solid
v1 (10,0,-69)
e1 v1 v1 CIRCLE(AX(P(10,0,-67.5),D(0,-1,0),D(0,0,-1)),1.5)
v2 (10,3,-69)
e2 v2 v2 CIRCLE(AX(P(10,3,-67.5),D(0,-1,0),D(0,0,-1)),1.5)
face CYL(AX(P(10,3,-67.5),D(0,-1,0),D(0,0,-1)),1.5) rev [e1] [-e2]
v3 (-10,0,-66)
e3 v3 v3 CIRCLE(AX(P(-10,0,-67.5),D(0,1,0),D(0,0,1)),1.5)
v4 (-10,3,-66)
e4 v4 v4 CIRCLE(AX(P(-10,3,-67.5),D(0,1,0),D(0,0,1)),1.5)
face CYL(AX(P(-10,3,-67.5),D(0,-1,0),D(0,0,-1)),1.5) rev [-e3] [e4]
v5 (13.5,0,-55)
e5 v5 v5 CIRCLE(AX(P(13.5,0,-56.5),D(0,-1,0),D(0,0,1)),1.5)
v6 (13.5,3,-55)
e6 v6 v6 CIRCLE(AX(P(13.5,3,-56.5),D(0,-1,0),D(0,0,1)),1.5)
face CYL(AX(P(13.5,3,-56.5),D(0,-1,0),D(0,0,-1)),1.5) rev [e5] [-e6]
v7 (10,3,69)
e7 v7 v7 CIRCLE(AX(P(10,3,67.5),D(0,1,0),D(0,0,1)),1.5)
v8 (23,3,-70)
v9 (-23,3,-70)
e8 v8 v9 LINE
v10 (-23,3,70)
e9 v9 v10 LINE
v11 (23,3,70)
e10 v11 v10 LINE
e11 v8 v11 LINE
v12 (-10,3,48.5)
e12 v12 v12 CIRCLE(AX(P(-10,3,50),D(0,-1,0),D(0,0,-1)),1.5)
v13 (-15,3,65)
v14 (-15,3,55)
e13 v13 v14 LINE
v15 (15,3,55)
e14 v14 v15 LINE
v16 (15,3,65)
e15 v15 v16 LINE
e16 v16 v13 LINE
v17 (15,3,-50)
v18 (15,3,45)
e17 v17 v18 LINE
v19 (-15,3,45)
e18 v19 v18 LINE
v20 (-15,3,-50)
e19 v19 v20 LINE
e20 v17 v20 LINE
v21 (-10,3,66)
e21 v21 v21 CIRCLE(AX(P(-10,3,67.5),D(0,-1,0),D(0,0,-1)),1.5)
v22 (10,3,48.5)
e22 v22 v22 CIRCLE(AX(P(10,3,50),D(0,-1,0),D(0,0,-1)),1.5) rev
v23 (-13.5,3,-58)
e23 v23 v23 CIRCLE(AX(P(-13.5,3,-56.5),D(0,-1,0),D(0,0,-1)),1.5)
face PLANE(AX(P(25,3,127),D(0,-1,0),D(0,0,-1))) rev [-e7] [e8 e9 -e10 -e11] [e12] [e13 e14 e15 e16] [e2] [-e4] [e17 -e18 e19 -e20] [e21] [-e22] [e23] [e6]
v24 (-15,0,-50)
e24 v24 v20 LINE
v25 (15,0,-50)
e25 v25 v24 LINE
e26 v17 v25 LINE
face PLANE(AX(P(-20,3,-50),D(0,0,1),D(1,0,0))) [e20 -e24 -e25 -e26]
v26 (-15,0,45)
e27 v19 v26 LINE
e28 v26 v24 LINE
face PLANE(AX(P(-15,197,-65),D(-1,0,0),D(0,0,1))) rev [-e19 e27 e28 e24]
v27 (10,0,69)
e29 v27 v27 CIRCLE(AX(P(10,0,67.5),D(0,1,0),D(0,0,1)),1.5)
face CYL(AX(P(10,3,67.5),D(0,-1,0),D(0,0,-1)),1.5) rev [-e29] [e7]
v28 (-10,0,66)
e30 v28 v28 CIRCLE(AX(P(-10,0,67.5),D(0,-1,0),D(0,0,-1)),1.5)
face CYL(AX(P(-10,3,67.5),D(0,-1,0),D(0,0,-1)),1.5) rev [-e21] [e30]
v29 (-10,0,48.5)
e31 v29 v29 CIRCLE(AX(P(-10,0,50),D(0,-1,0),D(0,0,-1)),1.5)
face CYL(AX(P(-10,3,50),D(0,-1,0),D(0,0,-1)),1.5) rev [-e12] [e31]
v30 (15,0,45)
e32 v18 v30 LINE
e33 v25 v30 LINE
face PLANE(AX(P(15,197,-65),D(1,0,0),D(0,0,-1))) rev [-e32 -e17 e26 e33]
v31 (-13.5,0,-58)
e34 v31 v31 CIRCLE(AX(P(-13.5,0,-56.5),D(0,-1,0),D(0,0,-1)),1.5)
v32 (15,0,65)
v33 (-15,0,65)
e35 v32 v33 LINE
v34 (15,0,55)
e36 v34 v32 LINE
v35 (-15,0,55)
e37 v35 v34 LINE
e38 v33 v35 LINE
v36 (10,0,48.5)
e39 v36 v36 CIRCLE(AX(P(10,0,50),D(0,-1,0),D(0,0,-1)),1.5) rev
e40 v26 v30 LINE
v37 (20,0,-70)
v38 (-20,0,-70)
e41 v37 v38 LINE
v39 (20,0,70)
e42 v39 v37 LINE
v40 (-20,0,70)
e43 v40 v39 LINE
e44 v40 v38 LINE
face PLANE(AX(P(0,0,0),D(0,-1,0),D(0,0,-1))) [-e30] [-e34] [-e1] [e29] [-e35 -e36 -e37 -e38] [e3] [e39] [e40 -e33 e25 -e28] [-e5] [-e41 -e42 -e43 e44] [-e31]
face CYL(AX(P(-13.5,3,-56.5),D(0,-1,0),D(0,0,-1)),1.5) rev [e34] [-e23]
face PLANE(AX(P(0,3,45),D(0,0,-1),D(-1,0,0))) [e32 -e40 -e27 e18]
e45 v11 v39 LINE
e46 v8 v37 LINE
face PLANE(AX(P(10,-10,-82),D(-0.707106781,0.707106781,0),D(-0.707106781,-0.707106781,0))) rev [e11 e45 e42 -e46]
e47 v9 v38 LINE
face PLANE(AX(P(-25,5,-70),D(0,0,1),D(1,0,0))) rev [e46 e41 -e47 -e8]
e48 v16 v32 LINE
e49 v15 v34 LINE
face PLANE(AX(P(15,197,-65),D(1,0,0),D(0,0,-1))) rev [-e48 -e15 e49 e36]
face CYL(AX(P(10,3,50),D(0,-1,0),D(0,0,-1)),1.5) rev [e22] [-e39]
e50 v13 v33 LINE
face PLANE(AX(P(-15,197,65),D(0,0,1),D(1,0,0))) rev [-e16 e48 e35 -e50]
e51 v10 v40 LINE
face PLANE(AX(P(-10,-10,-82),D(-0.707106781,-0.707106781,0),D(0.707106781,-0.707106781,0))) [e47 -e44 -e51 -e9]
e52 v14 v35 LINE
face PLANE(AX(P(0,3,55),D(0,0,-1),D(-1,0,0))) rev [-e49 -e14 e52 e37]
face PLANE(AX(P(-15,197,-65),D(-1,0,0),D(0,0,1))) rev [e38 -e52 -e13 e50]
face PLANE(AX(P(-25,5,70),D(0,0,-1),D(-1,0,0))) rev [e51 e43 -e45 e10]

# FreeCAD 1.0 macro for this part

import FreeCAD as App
import Part
import Sketcher
from FreeCAD import Vector

doc = App.newDocument("Part")
body = doc.addObject("PartDesign::Body", "Body")

# Sketch on XZ plane
sketch1 = doc.addObject("Sketcher::SketchObject", "Sketch")
body.addObject(sketch1)
sketch1.AttachmentSupport = (doc.XZ_Plane, [""])
sketch1.MapMode = "FlatFace"
sketch1.addGeometry([
    Part.LineSegment(Vector(-25, -70, 0), Vector(-25, 70, 0)),
    Part.LineSegment(Vector(-25, 70, 0), Vector(25, 70, 0)),
    Part.LineSegment(Vector(25, 70, 0), Vector(25, -70, 0)),
    Part.LineSegment(Vector(25, -70, 0), Vector(-25, -70, 0)),
], False)
sketch1.addConstraint([
    Sketcher.Constraint("Coincident", 0, 2, 1, 1),
    Sketcher.Constraint("Coincident", 1, 2, 2, 1),
    Sketcher.Constraint("Coincident", 2, 2, 3, 1),
    Sketcher.Constraint("Coincident", 3, 2, 0, 1),
    Sketcher.Constraint("Vertical", 0),
    Sketcher.Constraint("Horizontal", 1),
    Sketcher.Constraint("Vertical", 2),
    Sketcher.Constraint("Horizontal", 3),
    Sketcher.Constraint("Symmetric", 0, 2, 2, 2, -1, 1),
    Sketcher.Constraint("DistanceX", 1, 1, 1, 2, 50.0),
    Sketcher.Constraint("DistanceY", 0, 1, 0, 2, 140.0),
])
pad1 = doc.addObject("PartDesign::Pad", "Pad")
body.addObject(pad1)
pad1.Profile = sketch1
pad1.Length = 5
pad1.Reversed = True

# Sketch on XY plane
sketch2 = doc.addObject("Sketcher::SketchObject", "Sketch001")
body.addObject(sketch2)
sketch2.AttachmentSupport = (doc.XY_Plane, [""])
sketch2.MapMode = "FlatFace"
sketch2.AttachmentOffset = App.Placement(Vector(0, 0, 70), App.Rotation())
sketch2.addGeometry([
    Part.LineSegment(Vector(-20, 0, 0), Vector(-25, 5, 0)),  # 0
    Part.LineSegment(Vector(-25, 5, 0), Vector(-25, 0, 0)),  # 1
    Part.LineSegment(Vector(-25, 0, 0), Vector(-20, 0, 0)),  # 2
    Part.LineSegment(Vector(25, 5, 0), Vector(20, 0, 0)),  # 3
    Part.LineSegment(Vector(20, 0, 0), Vector(25, 0, 0)),  # 4
    Part.LineSegment(Vector(25, 0, 0), Vector(25, 5, 0)),  # 5
], False)
sketch2.addConstraint([
    Sketcher.Constraint("Coincident", 0, 2, 1, 1),
    Sketcher.Constraint("Coincident", 1, 2, 2, 1),
    Sketcher.Constraint("Coincident", 2, 2, 0, 1),
    Sketcher.Constraint("Coincident", 3, 2, 4, 1),
    Sketcher.Constraint("Coincident", 4, 2, 5, 1),
    Sketcher.Constraint("Coincident", 5, 2, 3, 1),
    Sketcher.Constraint("Vertical", 1),
    Sketcher.Constraint("Horizontal", 2),
    Sketcher.Constraint("Horizontal", 4),
    Sketcher.Constraint("Vertical", 5),
    Sketcher.Constraint("Symmetric", 2, 2, 3, 2, -1, 1),
    Sketcher.Constraint("Symmetric", 1, 2, 4, 2, -2),
    Sketcher.Constraint("Perpendicular", 0, 3),
    Sketcher.Constraint("Horizontal", 0, 2, 5, 2),
    Sketcher.Constraint("DistanceX", 2, 1, 2, 2, 5.0),
    Sketcher.Constraint("DistanceX", 0, 2, -1, 1, 25.0),
])
pocket1 = doc.addObject("PartDesign::Pocket", "Pocket")
body.addObject(pocket1)
pocket1.Profile = sketch2
pocket1.Length = 152

# Sketch on XY plane
sketch3 = doc.addObject("Sketcher::SketchObject", "Sketch002")
body.addObject(sketch3)
sketch3.AttachmentSupport = (doc.XY_Plane, [""])
sketch3.MapMode = "FlatFace"
sketch3.AttachmentOffset = App.Placement(Vector(0, 0, -70), App.Rotation())
sketch3.addGeometry([
    Part.LineSegment(Vector(25, 5, 0), Vector(25, 3, 0)),
    Part.LineSegment(Vector(25, 3, 0), Vector(-25, 3, 0)),
    Part.LineSegment(Vector(-25, 3, 0), Vector(-25, 5, 0)),
    Part.LineSegment(Vector(-25, 5, 0), Vector(25, 5, 0)),
], False)
sketch3.addConstraint([
    Sketcher.Constraint("Coincident", 0, 2, 1, 1),
    Sketcher.Constraint("Coincident", 1, 2, 2, 1),
    Sketcher.Constraint("Coincident", 2, 2, 3, 1),
    Sketcher.Constraint("Coincident", 3, 2, 0, 1),
    Sketcher.Constraint("Vertical", 0),
    Sketcher.Constraint("Horizontal", 1),
    Sketcher.Constraint("Vertical", 2),
    Sketcher.Constraint("Horizontal", 3),
    Sketcher.Constraint("DistanceX", 1, 2, 1, 1, 50.0),
    Sketcher.Constraint("DistanceY", 0, 2, 0, 1, 2.0),
    Sketcher.Constraint("DistanceX", -1, 1, 0, 2, 25.0),
    Sketcher.Constraint("DistanceY", -1, 1, 0, 2, 3.0),
])
pocket2 = doc.addObject("PartDesign::Pocket", "Pocket001")
body.addObject(pocket2)
pocket2.Profile = sketch3
pocket2.Length = 197
pocket2.Reversed = True

# Sketch on XZ plane
sketch4 = doc.addObject("Sketcher::SketchObject", "Sketch003")
body.addObject(sketch4)
sketch4.AttachmentSupport = (doc.XZ_Plane, [""])
sketch4.MapMode = "FlatFace"
sketch4.addGeometry([
    Part.LineSegment(Vector(-15, 65, 0), Vector(-15, -65, 0)),
    Part.LineSegment(Vector(-15, -65, 0), Vector(15, -65, 0)),
    Part.LineSegment(Vector(15, -65, 0), Vector(15, 65, 0)),
    Part.LineSegment(Vector(15, 65, 0), Vector(-15, 65, 0)),
], False)
sketch4.addConstraint([
    Sketcher.Constraint("Coincident", 0, 2, 1, 1),
    Sketcher.Constraint("Coincident", 1, 2, 2, 1),
    Sketcher.Constraint("Coincident", 2, 2, 3, 1),
    Sketcher.Constraint("Coincident", 3, 2, 0, 1),
    Sketcher.Constraint("Vertical", 0),
    Sketcher.Constraint("Horizontal", 1),
    Sketcher.Constraint("Vertical", 2),
    Sketcher.Constraint("Horizontal", 3),
    Sketcher.Constraint("Symmetric", 0, 2, 2, 2, -1, 1),
    Sketcher.Constraint("DistanceX", 1, 1, 1, 2, 30.0),
    Sketcher.Constraint("DistanceY", 0, 2, 0, 1, 130.0),
])
pocket3 = doc.addObject("PartDesign::Pocket", "Pocket002")
body.addObject(pocket3)
pocket3.Profile = sketch4
pocket3.Length = 197

# Sketch on XZ plane
sketch5 = doc.addObject("Sketcher::SketchObject", "Sketch004")
body.addObject(sketch5)
sketch5.AttachmentSupport = (doc.XZ_Plane, [""])
sketch5.MapMode = "FlatFace"
sketch5.addGeometry([
    Part.LineSegment(Vector(-20, -50, 0), Vector(-20, -70, 0)),  # 0
    Part.LineSegment(Vector(-20, -70, 0), Vector(20, -70, 0)),  # 1
    Part.LineSegment(Vector(20, -70, 0), Vector(20, -50, 0)),  # 2
    Part.LineSegment(Vector(20, -50, 0), Vector(-20, -50, 0)),  # 3
    Part.Circle(Vector(-13.5, -56.5, 0), Vector(0, 0, 1), 1.5),  # 4
    Part.Circle(Vector(13.5, -56.5, 0), Vector(0, 0, 1), 1.5),  # 5
], False)
sketch5.addConstraint([
    Sketcher.Constraint("Coincident", 0, 2, 1, 1),
    Sketcher.Constraint("Coincident", 1, 2, 2, 1),
    Sketcher.Constraint("Coincident", 2, 2, 3, 1),
    Sketcher.Constraint("Coincident", 3, 2, 0, 1),
    Sketcher.Constraint("Vertical", 0),
    Sketcher.Constraint("Horizontal", 1),
    Sketcher.Constraint("Vertical", 2),
    Sketcher.Constraint("Horizontal", 3),
    Sketcher.Constraint("Equal", 4, 5),
    Sketcher.Constraint("Symmetric", 4, 3, 5, 3, -2),
    Sketcher.Constraint("Diameter", 4, 3.0),
    Sketcher.Constraint("DistanceX", 1, 1, 1, 2, 40.0),
    Sketcher.Constraint("DistanceY", 0, 2, 0, 1, 20.0),
    Sketcher.Constraint("DistanceX", 0, 2, -1, 1, 20.0),
    Sketcher.Constraint("DistanceY", 0, 2, -1, 1, 70.0),
    Sketcher.Constraint("DistanceX", 4, 3, 5, 3, 27.0),
    Sketcher.Constraint("DistanceY", 4, 3, -1, 1, 56.5),
])
pad2 = doc.addObject("PartDesign::Pad", "Pad001")
body.addObject(pad2)
pad2.Profile = sketch5
pad2.Length = 3
pad2.Reversed = True

# Sketch on XZ plane
sketch6 = doc.addObject("Sketcher::SketchObject", "Sketch005")
body.addObject(sketch6)
sketch6.AttachmentSupport = (doc.XZ_Plane, [""])
sketch6.MapMode = "FlatFace"
sketch6.addGeometry([
    Part.LineSegment(Vector(-15, 55, 0), Vector(-15, 45, 0)),  # 0
    Part.LineSegment(Vector(-15, 45, 0), Vector(15, 45, 0)),  # 1
    Part.LineSegment(Vector(15, 45, 0), Vector(15, 55, 0)),  # 2
    Part.LineSegment(Vector(15, 55, 0), Vector(-15, 55, 0)),  # 3
    Part.Circle(Vector(-10, 50, 0), Vector(0, 0, 1), 1.5),  # 4
    Part.Circle(Vector(10, 50, 0), Vector(0, 0, 1), 1.5),  # 5
], False)
sketch6.addConstraint([
    Sketcher.Constraint("Coincident", 0, 2, 1, 1),
    Sketcher.Constraint("Coincident", 1, 2, 2, 1),
    Sketcher.Constraint("Coincident", 2, 2, 3, 1),
    Sketcher.Constraint("Coincident", 3, 2, 0, 1),
    Sketcher.Constraint("Vertical", 0),
    Sketcher.Constraint("Horizontal", 1),
    Sketcher.Constraint("Vertical", 2),
    Sketcher.Constraint("Horizontal", 3),
    Sketcher.Constraint("Equal", 4, 5),
    Sketcher.Constraint("Symmetric", 4, 3, 5, 3, -2),
    Sketcher.Constraint("Diameter", 4, 3.0),
    Sketcher.Constraint("DistanceX", 1, 1, 1, 2, 30.0),
    Sketcher.Constraint("DistanceY", 0, 2, 0, 1, 10.0),
    Sketcher.Constraint("DistanceX", 4, 3, -1, 1, 10.0),
    Sketcher.Constraint("DistanceY", -1, 1, 4, 3, 50.0),
    Sketcher.Constraint("DistanceX", 0, 2, -1, 1, 15.0),
    Sketcher.Constraint("DistanceY", -1, 1, 0, 2, 45.0),
])
pad3 = doc.addObject("PartDesign::Pad", "Pad002")
body.addObject(pad3)
pad3.Profile = sketch6
pad3.Length = 3
pad3.Reversed = True

# Sketch on XZ plane
sketch7 = doc.addObject("Sketcher::SketchObject", "Sketch006")
body.addObject(sketch7)
sketch7.AttachmentSupport = (doc.XZ_Plane, [""])
sketch7.MapMode = "FlatFace"
sketch7.addGeometry([
    Part.Circle(Vector(-10, 67.5, 0), Vector(0, 0, 1), 1.5),
    Part.Circle(Vector(10, 67.5, 0), Vector(0, 0, 1), 1.5),
    Part.Circle(Vector(10, -67.5, 0), Vector(0, 0, 1), 1.5),
    Part.Circle(Vector(-10, -67.5, 0), Vector(0, 0, 1), 1.5),
], False)
sketch7.addConstraint([
    Sketcher.Constraint("Equal", 0, 1),
    Sketcher.Constraint("Equal", 1, 2),
    Sketcher.Constraint("Equal", 2, 3),
    Sketcher.Constraint("Symmetric", 0, 3, 2, 3, -1, 1),
    Sketcher.Constraint("Symmetric", 1, 3, 3, 3, -1, 1),
    Sketcher.Constraint("Symmetric", 0, 3, 1, 3, -2),
    Sketcher.Constraint("Diameter", 0, 3.0),
    Sketcher.Constraint("DistanceX", 0, 3, -1, 1, 10.0),
    Sketcher.Constraint("DistanceY", 2, 3, 1, 3, 135.0),
])
pocket4 = doc.addObject("PartDesign::Pocket", "Pocket003")
body.addObject(pocket4)
pocket4.Profile = sketch7
pocket4.Length = 3

doc.recompute()
